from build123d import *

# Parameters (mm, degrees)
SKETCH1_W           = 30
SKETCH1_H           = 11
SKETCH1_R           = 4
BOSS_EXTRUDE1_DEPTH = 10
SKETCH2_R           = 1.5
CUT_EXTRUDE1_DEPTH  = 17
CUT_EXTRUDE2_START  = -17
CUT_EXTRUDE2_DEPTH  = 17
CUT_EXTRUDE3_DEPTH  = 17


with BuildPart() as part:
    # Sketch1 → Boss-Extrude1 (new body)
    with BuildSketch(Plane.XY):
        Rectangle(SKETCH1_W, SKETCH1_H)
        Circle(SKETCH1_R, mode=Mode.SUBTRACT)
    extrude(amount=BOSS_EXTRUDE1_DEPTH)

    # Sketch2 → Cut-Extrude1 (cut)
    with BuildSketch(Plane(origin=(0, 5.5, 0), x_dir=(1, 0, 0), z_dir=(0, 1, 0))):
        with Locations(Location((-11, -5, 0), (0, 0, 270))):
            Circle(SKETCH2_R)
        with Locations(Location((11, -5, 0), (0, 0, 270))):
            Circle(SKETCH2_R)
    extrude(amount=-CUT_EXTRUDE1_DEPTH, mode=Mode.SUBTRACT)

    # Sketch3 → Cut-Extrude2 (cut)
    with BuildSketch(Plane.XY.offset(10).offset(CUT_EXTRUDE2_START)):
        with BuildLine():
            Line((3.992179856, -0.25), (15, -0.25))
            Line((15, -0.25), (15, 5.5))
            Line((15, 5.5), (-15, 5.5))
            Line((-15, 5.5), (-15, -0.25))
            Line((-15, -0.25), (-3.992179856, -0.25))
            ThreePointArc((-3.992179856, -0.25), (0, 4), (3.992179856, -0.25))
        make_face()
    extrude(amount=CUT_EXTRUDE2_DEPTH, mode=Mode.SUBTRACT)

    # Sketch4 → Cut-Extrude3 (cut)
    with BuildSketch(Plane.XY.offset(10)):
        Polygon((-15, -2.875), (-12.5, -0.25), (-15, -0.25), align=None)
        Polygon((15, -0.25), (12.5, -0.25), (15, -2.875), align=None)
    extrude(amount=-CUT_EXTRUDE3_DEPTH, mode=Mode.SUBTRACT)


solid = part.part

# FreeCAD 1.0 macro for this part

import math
import FreeCAD as App
import Part
import Sketcher

V = App.Vector

doc = App.newDocument("Part")
body = doc.addObject("PartDesign::Body", "Body")

# Sketch on XY plane
sketch1 = body.newObject("Sketcher::SketchObject", "Sketch")
sketch1.AttachmentSupport = (doc.getObject("XY_Plane"), [""])
sketch1.MapMode = "FlatFace"
sketch1.addGeometry([
    Part.LineSegment(V(-15, 5.5, 0), V(-15, -5.5, 0)),  # 0
    Part.LineSegment(V(-15, -5.5, 0), V(15, -5.5, 0)),  # 1
    Part.LineSegment(V(15, -5.5, 0), V(15, 5.5, 0)),  # 2
    Part.LineSegment(V(15, 5.5, 0), V(-15, 5.5, 0)),  # 3
    Part.Circle(V(0, 0, 0), V(0, 0, 1), 4),  # 4
], False)
sketch1.addConstraint([
    Sketcher.Constraint("Coincident", 0, 2, 1, 1),
    Sketcher.Constraint("Coincident", 1, 2, 2, 1),
    Sketcher.Constraint("Coincident", 2, 2, 3, 1),
    Sketcher.Constraint("Coincident", 3, 2, 0, 1),
    Sketcher.Constraint("Vertical", 0),
    Sketcher.Constraint("Horizontal", 1),
    Sketcher.Constraint("Vertical", 2),
    Sketcher.Constraint("Horizontal", 3),
    Sketcher.Constraint("Coincident", 4, 3, -1, 1),
    Sketcher.Constraint("Symmetric", 0, 2, 2, 2, -1, 1),
    Sketcher.Constraint("Diameter", 4, 8.0),
    Sketcher.Constraint("DistanceX", 1, 1, 1, 2, 30.0),
    Sketcher.Constraint("DistanceY", 0, 2, 0, 1, 11.0),
])
pad1 = body.newObject("PartDesign::Pad", "Pad")
pad1.Profile = sketch1
pad1.Length = 10

# Sketch on XZ plane
sketch2 = body.newObject("Sketcher::SketchObject", "Sketch001")
sketch2.AttachmentSupport = (doc.getObject("XZ_Plane"), [""])
sketch2.MapMode = "FlatFace"
sketch2.AttachmentOffset = App.Placement(V(0, 0, -5.5), App.Rotation())
sketch2.addGeometry([
    Part.Circle(V(-11, 5, 0), V(0, 0, 1), 1.5),
    Part.Circle(V(11, 5, 0), V(0, 0, 1), 1.5),
], False)
sketch2.addConstraint([
    Sketcher.Constraint("Equal", 0, 1),
    Sketcher.Constraint("Symmetric", 0, 3, 1, 3, -2),
    Sketcher.Constraint("Diameter", 0, 3.0),
    Sketcher.Constraint("DistanceX", 0, 3, -1, 1, 11.0),
    Sketcher.Constraint("DistanceY", -1, 1, 0, 3, 5.0),
])
pocket1 = body.newObject("PartDesign::Pocket", "Pocket")
pocket1.Profile = sketch2
pocket1.Length = 17
pocket1.Reversed = True

# Sketch on XY plane
sketch3 = body.newObject("Sketcher::SketchObject", "Sketch002")
sketch3.AttachmentSupport = (doc.getObject("XY_Plane"), [""])
sketch3.MapMode = "FlatFace"
sketch3.AttachmentOffset = App.Placement(V(0, 0, -7), App.Rotation())
sketch3.addGeometry([
    Part.LineSegment(V(4, -0.2, 0), V(15, -0.2, 0)),  # 0
    Part.LineSegment(V(15, -0.2, 0), V(15, 5.5, 0)),  # 1
    Part.LineSegment(V(15, 5.5, 0), V(-15, 5.5, 0)),  # 2
    Part.LineSegment(V(-15, 5.5, 0), V(-15, -0.2, 0)),  # 3
    Part.LineSegment(V(-15, -0.2, 0), V(-4, -0.2, 0)),  # 4
    Part.ArcOfCircle(Part.Circle(V(0, 0, 0), V(0, 0, 1), 4), math.radians(-4), math.radians(184)),  # 5
], False)
sketch3.addConstraint([
    Sketcher.Constraint("Coincident", 0, 2, 1, 1),
    Sketcher.Constraint("Coincident", 1, 2, 2, 1),
    Sketcher.Constraint("Coincident", 2, 2, 3, 1),
    Sketcher.Constraint("Coincident", 3, 2, 4, 1),
    Sketcher.Constraint("Coincident", 4, 2, 5, 2),
    Sketcher.Constraint("Coincident", 5, 1, 0, 1),
    Sketcher.Constraint("Horizontal", 0),
    Sketcher.Constraint("Vertical", 1),
    Sketcher.Constraint("Horizontal", 2),
    Sketcher.Constraint("Vertical", 3),
    Sketcher.Constraint("Horizontal", 4),
    Sketcher.Constraint("Coincident", 5, 3, -1, 1),
    Sketcher.Constraint("Symmetric", 0, 2, 3, 2, -2),
    Sketcher.Constraint("Radius", 5, 4.0),
    Sketcher.Constraint("DistanceX", 2, 2, 2, 1, 30.0),
    Sketcher.Constraint("DistanceY", 1, 1, 1, 2, 5.75),
    Sketcher.Constraint("DistanceY", -1, 1, 1, 2, 5.5),
])
pocket2 = body.newObject("PartDesign::Pocket", "Pocket001")
pocket2.Profile = sketch3
pocket2.Length = 17
pocket2.Reversed = True

# Sketch on XY plane
sketch4 = body.newObject("Sketcher::SketchObject", "Sketch003")
sketch4.AttachmentSupport = (doc.getObject("XY_Plane"), [""])
sketch4.MapMode = "FlatFace"
sketch4.AttachmentOffset = App.Placement(V(0, 0, 10), App.Rotation())
sketch4.addGeometry([
    Part.LineSegment(V(-15, -2.9, 0), V(-12.5, -0.2, 0)),  # 0
    Part.LineSegment(V(-12.5, -0.2, 0), V(-15, -0.2, 0)),  # 1
    Part.LineSegment(V(-15, -0.2, 0), V(-15, -2.9, 0)),  # 2
    Part.LineSegment(V(15, -0.2, 0), V(12.5, -0.2, 0)),  # 3
    Part.LineSegment(V(12.5, -0.2, 0), V(15, -2.9, 0)),  # 4
    Part.LineSegment(V(15, -2.9, 0), V(15, -0.2, 0)),  # 5
], False)
sketch4.addConstraint([
    Sketcher.Constraint("Coincident", 0, 2, 1, 1),
    Sketcher.Constraint("Coincident", 1, 2, 2, 1),
    Sketcher.Constraint("Coincident", 2, 2, 0, 1),
    Sketcher.Constraint("Coincident", 3, 2, 4, 1),
    Sketcher.Constraint("Coincident", 4, 2, 5, 1),
    Sketcher.Constraint("Coincident", 5, 2, 3, 1),
    Sketcher.Constraint("Horizontal", 1),
    Sketcher.Constraint("Vertical", 2),
    Sketcher.Constraint("Horizontal", 3),
    Sketcher.Constraint("Vertical", 5),
    Sketcher.Constraint("Symmetric", 0, 2, 3, 2, -2),
    Sketcher.Constraint("Symmetric", 2, 2, 4, 2, -2),
    Sketcher.Constraint("DistanceX", 1, 2, 1, 1, 2.5),
    Sketcher.Constraint("DistanceX", 1, 2, -1, 1, 15.0),
    Sketcher.Constraint("DistanceY", 2, 2, 2, 1, 2.625),
    Sketcher.Constraint("DistanceY", 0, 2, -1, 1, 0.25),
])
pocket3 = body.newObject("PartDesign::Pocket", "Pocket002")
pocket3.Profile = sketch4
pocket3.Length = 17

doc.recompute()
